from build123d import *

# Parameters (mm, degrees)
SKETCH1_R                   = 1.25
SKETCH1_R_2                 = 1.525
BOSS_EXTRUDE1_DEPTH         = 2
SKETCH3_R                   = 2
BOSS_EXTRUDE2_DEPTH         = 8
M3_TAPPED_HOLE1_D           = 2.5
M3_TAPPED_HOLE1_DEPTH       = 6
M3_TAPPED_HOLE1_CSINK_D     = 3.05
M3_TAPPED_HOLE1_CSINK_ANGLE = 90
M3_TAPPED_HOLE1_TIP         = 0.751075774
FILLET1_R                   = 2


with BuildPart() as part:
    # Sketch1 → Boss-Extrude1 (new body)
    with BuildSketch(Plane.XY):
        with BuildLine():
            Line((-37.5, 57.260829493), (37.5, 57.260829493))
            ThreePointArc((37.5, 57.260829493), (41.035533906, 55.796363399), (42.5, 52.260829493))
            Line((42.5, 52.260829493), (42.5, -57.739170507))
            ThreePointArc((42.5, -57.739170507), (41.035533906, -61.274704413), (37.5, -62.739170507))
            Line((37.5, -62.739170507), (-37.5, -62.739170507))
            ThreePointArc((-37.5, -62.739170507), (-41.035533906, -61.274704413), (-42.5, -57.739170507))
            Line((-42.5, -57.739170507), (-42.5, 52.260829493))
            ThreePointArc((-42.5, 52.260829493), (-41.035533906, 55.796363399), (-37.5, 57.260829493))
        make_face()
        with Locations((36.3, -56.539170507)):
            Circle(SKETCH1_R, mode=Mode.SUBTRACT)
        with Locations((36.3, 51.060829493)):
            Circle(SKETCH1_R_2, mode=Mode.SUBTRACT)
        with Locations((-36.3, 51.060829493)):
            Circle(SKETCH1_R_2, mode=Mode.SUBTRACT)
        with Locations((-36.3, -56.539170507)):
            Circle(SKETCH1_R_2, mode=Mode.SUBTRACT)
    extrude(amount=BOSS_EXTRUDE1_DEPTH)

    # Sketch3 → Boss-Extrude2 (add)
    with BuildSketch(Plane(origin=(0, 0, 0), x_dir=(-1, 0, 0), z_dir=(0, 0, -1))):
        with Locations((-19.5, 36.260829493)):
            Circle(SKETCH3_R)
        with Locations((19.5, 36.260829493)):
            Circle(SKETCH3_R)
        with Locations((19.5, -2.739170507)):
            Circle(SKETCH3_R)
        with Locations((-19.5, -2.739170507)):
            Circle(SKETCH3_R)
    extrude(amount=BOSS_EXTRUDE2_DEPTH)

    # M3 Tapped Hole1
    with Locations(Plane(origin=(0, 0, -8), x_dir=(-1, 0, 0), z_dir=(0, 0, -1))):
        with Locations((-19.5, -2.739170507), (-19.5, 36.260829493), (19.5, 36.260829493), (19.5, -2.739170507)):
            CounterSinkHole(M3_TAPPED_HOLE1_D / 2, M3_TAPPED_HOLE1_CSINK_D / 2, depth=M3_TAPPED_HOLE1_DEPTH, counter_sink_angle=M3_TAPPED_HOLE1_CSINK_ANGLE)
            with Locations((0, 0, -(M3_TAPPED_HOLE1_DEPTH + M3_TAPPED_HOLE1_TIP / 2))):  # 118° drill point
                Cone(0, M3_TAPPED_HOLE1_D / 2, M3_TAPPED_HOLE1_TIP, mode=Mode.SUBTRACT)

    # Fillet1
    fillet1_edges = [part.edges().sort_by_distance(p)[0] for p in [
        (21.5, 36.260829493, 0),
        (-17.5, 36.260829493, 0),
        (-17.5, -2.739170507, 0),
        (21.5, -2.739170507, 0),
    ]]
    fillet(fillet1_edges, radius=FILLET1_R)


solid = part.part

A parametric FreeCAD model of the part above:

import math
import FreeCAD as App
import Part
import Sketcher

V = App.Vector
Q = App.Units.Quantity


def edges_at(feature, points):
    """Names of the edges that pass closest to the given points."""
    edges = feature.Shape.Edges
    near = lambda p: min(range(len(edges)), key=lambda i: edges[i].distToShape(Part.Vertex(*p))[0])
    return sorted({f"Edge{near(p) + 1}" for p in points})

doc = App.newDocument("Part")
params = doc.addObject("Spreadsheet::Sheet", "Params")
for row, (alias, value) in enumerate([
    ("sketch1_radius", "5 mm"),
    ("sketch1_diameter", "2.5 mm"),
    ("sketch1_diameter2", "3.05 mm"),
    ("sketch1_width", "75 mm"),
    ("sketch1_height", "110 mm"),
    ("pad1_length", "2 mm"),
    ("sketch2_diameter", "4 mm"),
    ("pad2_length", "8 mm"),
    ("sketch3_diameter", "2.5 mm"),
    ("hole_diameter", "2.5 mm"),
    ("hole_depth", "6 mm"),
    ("hole_csink_diameter", "3.05 mm"),
    ("fillet_radius", "2 mm"),
], start=1):
    params.set(f"A{row}", alias)
    params.set(f"B{row}", "=" + value)
    params.setAlias(f"B{row}", alias)

body = doc.addObject("PartDesign::Body", "Body")

sketch1 = body.newObject("Sketcher::SketchObject", "Sketch")
sketch1.AttachmentSupport = (doc.getObject("XY_Plane"), [""])
sketch1.MapMode = "FlatFace"
sketch1.addGeometry([
    Part.LineSegment(V(37.5, 57.3, 0), V(-37.5, 57.3, 0)),
    Part.ArcOfCircle(Part.Circle(V(-37.5, 52.3, 0), V(0, 0, 1), 5), math.radians(90), math.radians(180)),
    Part.LineSegment(V(-42.5, 52.3, 0), V(-42.5, -57.7, 0)),
    Part.ArcOfCircle(Part.Circle(V(-37.5, -57.7, 0), V(0, 0, 1), 5), math.radians(180), math.radians(270)),
    Part.LineSegment(V(-37.5, -62.7, 0), V(37.5, -62.7, 0)),
    Part.ArcOfCircle(Part.Circle(V(37.5, -57.7, 0), V(0, 0, 1), 5), math.radians(-90), math.radians(0)),
    Part.LineSegment(V(42.5, -57.7, 0), V(42.5, 52.3, 0)),
    Part.ArcOfCircle(Part.Circle(V(37.5, 52.3, 0), V(0, 0, 1), 5), math.radians(0), math.radians(90)),
    Part.Circle(V(36.3, -56.5, 0), V(0, 0, 1), 1.2),
    Part.Circle(V(-36.3, -56.5, 0), V(0, 0, 1), 1.5),
    Part.Circle(V(36.3, 51.1, 0), V(0, 0, 1), 1.5),
    Part.Circle(V(-36.3, 51.1, 0), V(0, 0, 1), 1.5),
], False)
sketch1.addConstraint([
    Sketcher.Constraint("Tangent", 0, 2, 1, 1),
    Sketcher.Constraint("Tangent", 1, 2, 2, 1),
    Sketcher.Constraint("Tangent", 2, 2, 3, 1),
    Sketcher.Constraint("Tangent", 3, 2, 4, 1),
    Sketcher.Constraint("Tangent", 4, 2, 5, 1),
    Sketcher.Constraint("Tangent", 5, 2, 6, 1),
    Sketcher.Constraint("Tangent", 6, 2, 7, 1),
    Sketcher.Constraint("Tangent", 7, 2, 0, 1),
    Sketcher.Constraint("Horizontal", 0),
    Sketcher.Constraint("Vertical", 2),
    Sketcher.Constraint("Horizontal", 4),
    Sketcher.Constraint("Vertical", 6),
    Sketcher.Constraint("Equal", 1, 3),
    Sketcher.Constraint("Equal", 3, 5),
    Sketcher.Constraint("Equal", 5, 7),
    Sketcher.Constraint("Equal", 9, 10),
    Sketcher.Constraint("Equal", 10, 11),
    Sketcher.Constraint("Symmetric", 8, 3, 9, 3, -2),
    Sketcher.Constraint("Symmetric", 10, 3, 11, 3, -2),
    Sketcher.Constraint("Vertical", 8, 3, 10, 3),
    Sketcher.Constraint("Radius", 1, Q("5 mm")),
    Sketcher.Constraint("Diameter", 8, Q("2.5 mm")),
    Sketcher.Constraint("Diameter", 9, Q("3.05 mm")),
    Sketcher.Constraint("DistanceX", 0, 2, 0, 1, Q("75 mm")),
    Sketcher.Constraint("DistanceY", 2, 2, 2, 1, Q("110 mm")),
    Sketcher.Constraint("DistanceX", 1, 3, -1, 1, Q("37.5 mm")),
    Sketcher.Constraint("DistanceX", -1, 1, 8, 3, Q("36.3 mm")),
    Sketcher.Constraint("DistanceY", 5, 3, 8, 3, Q("1.2 mm")),
    Sketcher.Constraint("DistanceY", 10, 3, 7, 3, Q("1.2 mm")),
    Sketcher.Constraint("DistanceY", -1, 1, 1, 3, Q("52.260829 mm")),
])
sketch1.setExpression("Constraints[20]", "Params.sketch1_radius")
sketch1.setExpression("Constraints[21]", "Params.sketch1_diameter")
sketch1.setExpression("Constraints[22]", "Params.sketch1_diameter2")
sketch1.setExpression("Constraints[23]", "Params.sketch1_width")
sketch1.setExpression("Constraints[24]", "Params.sketch1_height")
pad1 = body.newObject("PartDesign::Pad", "Pad")
pad1.Profile = sketch1
pad1.setExpression("Length", "Params.pad1_length")

sketch2 = body.newObject("Sketcher::SketchObject", "Sketch001")
sketch2.AttachmentSupport = (doc.getObject("XY_Plane"), [""])
sketch2.MapMode = "FlatFace"
sketch2.addGeometry([
    Part.Circle(V(19.5, 36.3, 0), V(0, 0, 1), 2),
    Part.Circle(V(-19.5, 36.3, 0), V(0, 0, 1), 2),
    Part.Circle(V(-19.5, -2.7, 0), V(0, 0, 1), 2),
    Part.Circle(V(19.5, -2.7, 0), V(0, 0, 1), 2),
], False)
sketch2.addConstraint([
    Sketcher.Constraint("Equal", 0, 1),
    Sketcher.Constraint("Equal", 1, 2),
    Sketcher.Constraint("Equal", 2, 3),
    Sketcher.Constraint("Symmetric", 0, 3, 1, 3, -2),
    Sketcher.Constraint("Symmetric", 2, 3, 3, 3, -2),
    Sketcher.Constraint("Vertical", 1, 3, 2, 3),
    Sketcher.Constraint("Diameter", 0, Q("4 mm")),
    Sketcher.Constraint("DistanceX", 1, 3, 0, 3, Q("39 mm")),
    Sketcher.Constraint("DistanceY", 2, 3, 1, 3, Q("39 mm")),
    Sketcher.Constraint("DistanceY", -1, 1, 0, 3, Q("36.260829 mm")),
])
sketch2.setExpression("Constraints[6]", "Params.sketch2_diameter")
pad2 = body.newObject("PartDesign::Pad", "Pad001")
pad2.Profile = sketch2
pad2.setExpression("Length", "Params.pad2_length")
pad2.Reversed = True

sketch3 = body.newObject("Sketcher::SketchObject", "Sketch002")
sketch3.AttachmentSupport = (doc.getObject("XY_Plane"), [""])
sketch3.MapMode = "FlatFace"
sketch3.AttachmentOffset = App.Placement(V(0, 0, -8), App.Rotation())
sketch3.addGeometry([
    Part.Circle(V(19.5, -2.7, 0), V(0, 0, 1), 1.2),
    Part.Circle(V(19.5, 36.3, 0), V(0, 0, 1), 1.2),
    Part.Circle(V(-19.5, 36.3, 0), V(0, 0, 1), 1.2),
    Part.Circle(V(-19.5, -2.7, 0), V(0, 0, 1), 1.2),
], False)
sketch3.addConstraint([
    Sketcher.Constraint("Equal", 0, 1),
    Sketcher.Constraint("Equal", 1, 2),
    Sketcher.Constraint("Equal", 2, 3),
    Sketcher.Constraint("Symmetric", 1, 3, 2, 3, -2),
    Sketcher.Constraint("Symmetric", 0, 3, 3, 3, -2),
    Sketcher.Constraint("Vertical", 0, 3, 1, 3),
    Sketcher.Constraint("Diameter", 0, Q("2.5 mm")),
    Sketcher.Constraint("DistanceY", 0, 3, 1, 3, Q("39 mm")),
    Sketcher.Constraint("DistanceX", 2, 3, 1, 3, Q("39 mm")),
    Sketcher.Constraint("DistanceY", 0, 3, -1, 1, Q("2.739171 mm")),
])
sketch3.setExpression("Constraints[6]", "Params.sketch3_diameter")
doc.recompute()
hole = body.newObject("PartDesign::Hole", "Hole")
hole.Profile = sketch3
hole.ThreadType = "None"
hole.setExpression("Diameter", "Params.hole_diameter")
hole.DepthType = "Dimension"
hole.setExpression("Depth", "Params.hole_depth")
hole.DrillPoint = "Angled"
hole.DrillPointAngle = 118
hole.HoleCutType = "Countersink"
hole.setExpression("HoleCutDiameter", "Params.hole_csink_diameter")
hole.HoleCutCountersinkAngle = 90
hole.Reversed = True
doc.recompute()

fillet = body.newObject("PartDesign::Fillet", "Fillet")
fillet.Base = (hole, edges_at(hole, [
    (21.5, 36.261, 0),
    (-17.5, 36.261, 0),
    (-17.5, -2.739, 0),
    (21.5, -2.739, 0),
]))
fillet.setExpression("Radius", "Params.fillet_radius")

doc.recompute()
